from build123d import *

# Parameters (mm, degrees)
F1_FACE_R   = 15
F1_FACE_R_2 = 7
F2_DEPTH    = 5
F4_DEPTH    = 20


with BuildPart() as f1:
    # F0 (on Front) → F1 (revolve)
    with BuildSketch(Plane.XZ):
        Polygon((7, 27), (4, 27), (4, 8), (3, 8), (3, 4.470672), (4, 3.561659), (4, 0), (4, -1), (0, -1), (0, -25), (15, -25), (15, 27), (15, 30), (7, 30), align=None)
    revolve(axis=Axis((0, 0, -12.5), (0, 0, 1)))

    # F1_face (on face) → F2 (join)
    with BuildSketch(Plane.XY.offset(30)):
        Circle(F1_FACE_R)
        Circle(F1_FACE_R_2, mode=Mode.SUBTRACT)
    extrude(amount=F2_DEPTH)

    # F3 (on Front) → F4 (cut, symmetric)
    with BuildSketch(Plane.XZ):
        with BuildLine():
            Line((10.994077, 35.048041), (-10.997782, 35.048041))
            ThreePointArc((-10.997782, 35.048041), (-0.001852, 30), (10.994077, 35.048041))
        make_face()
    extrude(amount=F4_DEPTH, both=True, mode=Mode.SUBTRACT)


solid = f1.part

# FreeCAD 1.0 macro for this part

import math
import FreeCAD as App
import Part
import Sketcher
from FreeCAD import Vector


def add_polygon(sketch, points):
    """Adds a closed chain of lines whose ends are joined by coincident constraints."""
    first, n = sketch.GeometryCount, len(points)
    for a, b in zip(points, points[1:] + points[:1]):
        sketch.addGeometry(Part.LineSegment(App.Vector(*a, 0), App.Vector(*b, 0)), False)
    for i in range(n):
        sketch.addConstraint(Sketcher.Constraint("Coincident", first + i, 2, first + (i + 1) % n, 1))

doc = App.newDocument("Part")
body = doc.addObject("PartDesign::Body", "Body")

# Sketch on XZ plane
sketch1 = body.newObject("Sketcher::SketchObject", "Sketch")
sketch1.AttachmentSupport = (doc.getObject("XZ_Plane"), [""])
sketch1.MapMode = "FlatFace"
add_polygon(sketch1, [(7, 27), (4, 27), (4, 8), (3, 8), (3, 4.5), (4, 3.6), (4, -1), (0, -1), (0, -25), (15, -25), (15, 30), (7, 30)])  # lines 0-11
sketch1.addConstraint([
    Sketcher.Constraint("Horizontal", 0),
    Sketcher.Constraint("Vertical", 1),
    Sketcher.Constraint("Horizontal", 2),
    Sketcher.Constraint("Vertical", 3),
    Sketcher.Constraint("Vertical", 5),
    Sketcher.Constraint("Horizontal", 6),
    Sketcher.Constraint("Vertical", 7),
    Sketcher.Constraint("Horizontal", 8),
    Sketcher.Constraint("Vertical", 9),
    Sketcher.Constraint("Horizontal", 10),
    Sketcher.Constraint("Vertical", 11),
    Sketcher.Constraint("PointOnObject", 6, 2, -2),
    Sketcher.Constraint("Vertical", 1, 2, 4, 2),
    Sketcher.Constraint("Equal", 0, 11),
    Sketcher.Constraint("DistanceX", 0, 2, 0, 1, 3.0),
    Sketcher.Constraint("DistanceX", 2, 2, 2, 1, 1.0),
    Sketcher.Constraint("DistanceX", 6, 2, 6, 1, 4.0),
    Sketcher.Constraint("DistanceX", 8, 1, 8, 2, 15.0),
    Sketcher.Constraint("DistanceY", 1, 2, 1, 1, 19.0),
    Sketcher.Constraint("DistanceY", 7, 2, 7, 1, 24.0),
    Sketcher.Constraint("DistanceY", 9, 1, 9, 2, 55.0),
    Sketcher.Constraint("DistanceY", -1, 1, 0, 2, 27.0),
    Sketcher.Constraint("DistanceY", 5, 2, 5, 1, 4.561659),
    Sketcher.Constraint("Distance", 4, 1.351408),
])
revolution = body.newObject("PartDesign::Revolution", "Revolution")
revolution.Profile = sketch1
revolution.ReferenceAxis = (sketch1, ["V_Axis"])
revolution.Angle = 360

# Sketch on XY plane
sketch2 = body.newObject("Sketcher::SketchObject", "Sketch001")
sketch2.AttachmentSupport = (doc.getObject("XY_Plane"), [""])
sketch2.MapMode = "FlatFace"
sketch2.AttachmentOffset = App.Placement(Vector(0, 0, 30), App.Rotation())
sketch2.addGeometry([
    Part.Circle(Vector(0, 0, 0), Vector(0, 0, 1), 15),
    Part.Circle(Vector(0, 0, 0), Vector(0, 0, 1), 7),
], False)
sketch2.addConstraint([
    Sketcher.Constraint("Coincident", 0, 3, -1, 1),
    Sketcher.Constraint("Coincident", 1, 3, -1, 1),
    Sketcher.Constraint("Diameter", 0, 30.0),
    Sketcher.Constraint("Diameter", 1, 14.0),
])
pad1 = body.newObject("PartDesign::Pad", "Pad")
pad1.Profile = sketch2
pad1.Length = 5

# Sketch on XZ plane
sketch3 = body.newObject("Sketcher::SketchObject", "Sketch002")
sketch3.AttachmentSupport = (doc.getObject("XZ_Plane"), [""])
sketch3.MapMode = "FlatFace"
sketch3.addGeometry([
    Part.LineSegment(Vector(11, 35, 0), Vector(-11, 35, 0)),
    Part.ArcOfCircle(Part.Circle(Vector(0, 44, 0), Vector(0, 0, 1), 14), math.radians(-139), math.radians(-41)),
], False)
sketch3.addConstraint([
    Sketcher.Constraint("Coincident", 0, 1, 1, 2),
    Sketcher.Constraint("Coincident", 1, 1, 0, 2),
    Sketcher.Constraint("Horizontal", 0),
    Sketcher.Constraint("Radius", 1, 14.499999),
    Sketcher.Constraint("DistanceY", -1, 1, 1, 3, 44.499999),
    Sketcher.Constraint("DistanceX", 0, 2, 0, 1, 21.991859),
    Sketcher.Constraint("DistanceX", 1, 3, -1, 1, 0.001852),
])
pocket1 = body.newObject("PartDesign::Pocket", "Pocket")
pocket1.Profile = sketch3
pocket1.Length = 40
pocket1.Midplane = True

doc.recompute()
